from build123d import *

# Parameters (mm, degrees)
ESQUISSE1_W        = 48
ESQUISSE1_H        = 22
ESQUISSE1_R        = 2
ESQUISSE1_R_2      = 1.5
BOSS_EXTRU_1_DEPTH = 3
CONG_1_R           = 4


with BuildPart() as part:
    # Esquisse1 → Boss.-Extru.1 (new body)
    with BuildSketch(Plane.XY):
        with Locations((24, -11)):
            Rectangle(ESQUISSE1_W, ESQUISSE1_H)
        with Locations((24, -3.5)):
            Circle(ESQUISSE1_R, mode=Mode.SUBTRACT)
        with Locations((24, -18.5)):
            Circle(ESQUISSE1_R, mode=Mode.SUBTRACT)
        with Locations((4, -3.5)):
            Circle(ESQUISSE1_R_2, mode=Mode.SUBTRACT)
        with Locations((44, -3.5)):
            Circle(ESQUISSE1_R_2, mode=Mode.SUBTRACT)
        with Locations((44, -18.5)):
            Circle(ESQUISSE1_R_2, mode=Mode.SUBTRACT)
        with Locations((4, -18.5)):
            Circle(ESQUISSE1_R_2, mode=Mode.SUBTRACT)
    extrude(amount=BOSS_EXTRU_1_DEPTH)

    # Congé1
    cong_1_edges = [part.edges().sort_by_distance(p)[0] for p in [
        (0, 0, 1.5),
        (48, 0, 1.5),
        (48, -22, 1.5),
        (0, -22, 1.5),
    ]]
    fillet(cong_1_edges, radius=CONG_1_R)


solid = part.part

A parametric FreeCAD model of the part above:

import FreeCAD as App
import Part
import Sketcher
Q = App.Units.Quantity


def edges_at(feature, points):
    """Names of the edges that pass closest to the given points."""
    edges = feature.Shape.Edges
    near = lambda p: min(range(len(edges)), key=lambda i: edges[i].distToShape(Part.Vertex(*p))[0])
    return sorted({f"Edge{near(p) + 1}" for p in points})

doc = App.newDocument("Part")
body = doc.addObject("PartDesign::Body", "Body")

# Sketch on XY plane
sketch1 = doc.addObject("Sketcher::SketchObject", "Sketch")
body.addObject(sketch1)
sketch1.AttachmentSupport = (doc.XY_Plane, [""])
sketch1.MapMode = "FlatFace"
sketch1.addGeometry([
    Part.LineSegment(App.Vector(0, 0, 0), App.Vector(0, -22, 0)),  # 0
    Part.LineSegment(App.Vector(0, -22, 0), App.Vector(48, -22, 0)),  # 1
    Part.LineSegment(App.Vector(48, -22, 0), App.Vector(48, 0, 0)),  # 2
    Part.LineSegment(App.Vector(48, 0, 0), App.Vector(0, 0, 0)),  # 3
    Part.Circle(App.Vector(4, -18.5, 0), App.Vector(0, 0, 1), 1.5),  # 4
    Part.Circle(App.Vector(24, -18.5, 0), App.Vector(0, 0, 1), 2),  # 5
    Part.Circle(App.Vector(44, -18.5, 0), App.Vector(0, 0, 1), 1.5),  # 6
    Part.Circle(App.Vector(4, -3.5, 0), App.Vector(0, 0, 1), 1.5),  # 7
    Part.Circle(App.Vector(24, -3.5, 0), App.Vector(0, 0, 1), 2),  # 8
    Part.Circle(App.Vector(44, -3.5, 0), App.Vector(0, 0, 1), 1.5),  # 9
], False)
sketch1.addConstraint([
    Sketcher.Constraint("Coincident", 0, 2, 1, 1),
    Sketcher.Constraint("Coincident", 1, 2, 2, 1),
    Sketcher.Constraint("Coincident", 2, 2, 3, 1),
    Sketcher.Constraint("Coincident", 3, 2, 0, 1),
    Sketcher.Constraint("Vertical", 0),
    Sketcher.Constraint("Horizontal", 1),
    Sketcher.Constraint("Vertical", 2),
    Sketcher.Constraint("Horizontal", 3),
    Sketcher.Constraint("Coincident", 3, 2, -1, 1),
    Sketcher.Constraint("Equal", 4, 6),
    Sketcher.Constraint("Equal", 6, 7),
    Sketcher.Constraint("Equal", 5, 8),
    Sketcher.Constraint("Equal", 7, 9),
    Sketcher.Constraint("Horizontal", 4, 3, 5, 3),
    Sketcher.Constraint("Horizontal", 5, 3, 6, 3),
    Sketcher.Constraint("Horizontal", 7, 3, 8, 3),
    Sketcher.Constraint("Horizontal", 8, 3, 9, 3),
    Sketcher.Constraint("Vertical", 4, 3, 7, 3),
    Sketcher.Constraint("Vertical", 5, 3, 8, 3),
    Sketcher.Constraint("Vertical", 6, 3, 9, 3),
    Sketcher.Constraint("Diameter", 4, Q("3 mm")),
    Sketcher.Constraint("Diameter", 5, Q("4 mm")),
    Sketcher.Constraint("DistanceX", 1, 1, 1, 2, Q("48 mm")),
    Sketcher.Constraint("DistanceY", 0, 2, 0, 1, Q("22 mm")),
    Sketcher.Constraint("DistanceX", -1, 1, 4, 3, Q("4 mm")),
    Sketcher.Constraint("DistanceX", -1, 1, 5, 3, Q("24 mm")),
    Sketcher.Constraint("DistanceX", -1, 1, 6, 3, Q("44 mm")),
    Sketcher.Constraint("DistanceY", 4, 3, 7, 3, Q("15 mm")),
    Sketcher.Constraint("DistanceY", 4, 3, -1, 1, Q("18.5 mm")),
])
pad1 = doc.addObject("PartDesign::Pad", "Pad")
body.addObject(pad1)
pad1.Profile = sketch1
pad1.Length = 3
doc.recompute()

fillet = doc.addObject("PartDesign::Fillet", "Fillet")
body.addObject(fillet)
fillet.Base = (pad1, edges_at(pad1, [
    (0, 0, 1.5),
    (48, 0, 1.5),
    (48, -22, 1.5),
    (0, -22, 1.5),
]))
fillet.Radius = 4

doc.recompute()
